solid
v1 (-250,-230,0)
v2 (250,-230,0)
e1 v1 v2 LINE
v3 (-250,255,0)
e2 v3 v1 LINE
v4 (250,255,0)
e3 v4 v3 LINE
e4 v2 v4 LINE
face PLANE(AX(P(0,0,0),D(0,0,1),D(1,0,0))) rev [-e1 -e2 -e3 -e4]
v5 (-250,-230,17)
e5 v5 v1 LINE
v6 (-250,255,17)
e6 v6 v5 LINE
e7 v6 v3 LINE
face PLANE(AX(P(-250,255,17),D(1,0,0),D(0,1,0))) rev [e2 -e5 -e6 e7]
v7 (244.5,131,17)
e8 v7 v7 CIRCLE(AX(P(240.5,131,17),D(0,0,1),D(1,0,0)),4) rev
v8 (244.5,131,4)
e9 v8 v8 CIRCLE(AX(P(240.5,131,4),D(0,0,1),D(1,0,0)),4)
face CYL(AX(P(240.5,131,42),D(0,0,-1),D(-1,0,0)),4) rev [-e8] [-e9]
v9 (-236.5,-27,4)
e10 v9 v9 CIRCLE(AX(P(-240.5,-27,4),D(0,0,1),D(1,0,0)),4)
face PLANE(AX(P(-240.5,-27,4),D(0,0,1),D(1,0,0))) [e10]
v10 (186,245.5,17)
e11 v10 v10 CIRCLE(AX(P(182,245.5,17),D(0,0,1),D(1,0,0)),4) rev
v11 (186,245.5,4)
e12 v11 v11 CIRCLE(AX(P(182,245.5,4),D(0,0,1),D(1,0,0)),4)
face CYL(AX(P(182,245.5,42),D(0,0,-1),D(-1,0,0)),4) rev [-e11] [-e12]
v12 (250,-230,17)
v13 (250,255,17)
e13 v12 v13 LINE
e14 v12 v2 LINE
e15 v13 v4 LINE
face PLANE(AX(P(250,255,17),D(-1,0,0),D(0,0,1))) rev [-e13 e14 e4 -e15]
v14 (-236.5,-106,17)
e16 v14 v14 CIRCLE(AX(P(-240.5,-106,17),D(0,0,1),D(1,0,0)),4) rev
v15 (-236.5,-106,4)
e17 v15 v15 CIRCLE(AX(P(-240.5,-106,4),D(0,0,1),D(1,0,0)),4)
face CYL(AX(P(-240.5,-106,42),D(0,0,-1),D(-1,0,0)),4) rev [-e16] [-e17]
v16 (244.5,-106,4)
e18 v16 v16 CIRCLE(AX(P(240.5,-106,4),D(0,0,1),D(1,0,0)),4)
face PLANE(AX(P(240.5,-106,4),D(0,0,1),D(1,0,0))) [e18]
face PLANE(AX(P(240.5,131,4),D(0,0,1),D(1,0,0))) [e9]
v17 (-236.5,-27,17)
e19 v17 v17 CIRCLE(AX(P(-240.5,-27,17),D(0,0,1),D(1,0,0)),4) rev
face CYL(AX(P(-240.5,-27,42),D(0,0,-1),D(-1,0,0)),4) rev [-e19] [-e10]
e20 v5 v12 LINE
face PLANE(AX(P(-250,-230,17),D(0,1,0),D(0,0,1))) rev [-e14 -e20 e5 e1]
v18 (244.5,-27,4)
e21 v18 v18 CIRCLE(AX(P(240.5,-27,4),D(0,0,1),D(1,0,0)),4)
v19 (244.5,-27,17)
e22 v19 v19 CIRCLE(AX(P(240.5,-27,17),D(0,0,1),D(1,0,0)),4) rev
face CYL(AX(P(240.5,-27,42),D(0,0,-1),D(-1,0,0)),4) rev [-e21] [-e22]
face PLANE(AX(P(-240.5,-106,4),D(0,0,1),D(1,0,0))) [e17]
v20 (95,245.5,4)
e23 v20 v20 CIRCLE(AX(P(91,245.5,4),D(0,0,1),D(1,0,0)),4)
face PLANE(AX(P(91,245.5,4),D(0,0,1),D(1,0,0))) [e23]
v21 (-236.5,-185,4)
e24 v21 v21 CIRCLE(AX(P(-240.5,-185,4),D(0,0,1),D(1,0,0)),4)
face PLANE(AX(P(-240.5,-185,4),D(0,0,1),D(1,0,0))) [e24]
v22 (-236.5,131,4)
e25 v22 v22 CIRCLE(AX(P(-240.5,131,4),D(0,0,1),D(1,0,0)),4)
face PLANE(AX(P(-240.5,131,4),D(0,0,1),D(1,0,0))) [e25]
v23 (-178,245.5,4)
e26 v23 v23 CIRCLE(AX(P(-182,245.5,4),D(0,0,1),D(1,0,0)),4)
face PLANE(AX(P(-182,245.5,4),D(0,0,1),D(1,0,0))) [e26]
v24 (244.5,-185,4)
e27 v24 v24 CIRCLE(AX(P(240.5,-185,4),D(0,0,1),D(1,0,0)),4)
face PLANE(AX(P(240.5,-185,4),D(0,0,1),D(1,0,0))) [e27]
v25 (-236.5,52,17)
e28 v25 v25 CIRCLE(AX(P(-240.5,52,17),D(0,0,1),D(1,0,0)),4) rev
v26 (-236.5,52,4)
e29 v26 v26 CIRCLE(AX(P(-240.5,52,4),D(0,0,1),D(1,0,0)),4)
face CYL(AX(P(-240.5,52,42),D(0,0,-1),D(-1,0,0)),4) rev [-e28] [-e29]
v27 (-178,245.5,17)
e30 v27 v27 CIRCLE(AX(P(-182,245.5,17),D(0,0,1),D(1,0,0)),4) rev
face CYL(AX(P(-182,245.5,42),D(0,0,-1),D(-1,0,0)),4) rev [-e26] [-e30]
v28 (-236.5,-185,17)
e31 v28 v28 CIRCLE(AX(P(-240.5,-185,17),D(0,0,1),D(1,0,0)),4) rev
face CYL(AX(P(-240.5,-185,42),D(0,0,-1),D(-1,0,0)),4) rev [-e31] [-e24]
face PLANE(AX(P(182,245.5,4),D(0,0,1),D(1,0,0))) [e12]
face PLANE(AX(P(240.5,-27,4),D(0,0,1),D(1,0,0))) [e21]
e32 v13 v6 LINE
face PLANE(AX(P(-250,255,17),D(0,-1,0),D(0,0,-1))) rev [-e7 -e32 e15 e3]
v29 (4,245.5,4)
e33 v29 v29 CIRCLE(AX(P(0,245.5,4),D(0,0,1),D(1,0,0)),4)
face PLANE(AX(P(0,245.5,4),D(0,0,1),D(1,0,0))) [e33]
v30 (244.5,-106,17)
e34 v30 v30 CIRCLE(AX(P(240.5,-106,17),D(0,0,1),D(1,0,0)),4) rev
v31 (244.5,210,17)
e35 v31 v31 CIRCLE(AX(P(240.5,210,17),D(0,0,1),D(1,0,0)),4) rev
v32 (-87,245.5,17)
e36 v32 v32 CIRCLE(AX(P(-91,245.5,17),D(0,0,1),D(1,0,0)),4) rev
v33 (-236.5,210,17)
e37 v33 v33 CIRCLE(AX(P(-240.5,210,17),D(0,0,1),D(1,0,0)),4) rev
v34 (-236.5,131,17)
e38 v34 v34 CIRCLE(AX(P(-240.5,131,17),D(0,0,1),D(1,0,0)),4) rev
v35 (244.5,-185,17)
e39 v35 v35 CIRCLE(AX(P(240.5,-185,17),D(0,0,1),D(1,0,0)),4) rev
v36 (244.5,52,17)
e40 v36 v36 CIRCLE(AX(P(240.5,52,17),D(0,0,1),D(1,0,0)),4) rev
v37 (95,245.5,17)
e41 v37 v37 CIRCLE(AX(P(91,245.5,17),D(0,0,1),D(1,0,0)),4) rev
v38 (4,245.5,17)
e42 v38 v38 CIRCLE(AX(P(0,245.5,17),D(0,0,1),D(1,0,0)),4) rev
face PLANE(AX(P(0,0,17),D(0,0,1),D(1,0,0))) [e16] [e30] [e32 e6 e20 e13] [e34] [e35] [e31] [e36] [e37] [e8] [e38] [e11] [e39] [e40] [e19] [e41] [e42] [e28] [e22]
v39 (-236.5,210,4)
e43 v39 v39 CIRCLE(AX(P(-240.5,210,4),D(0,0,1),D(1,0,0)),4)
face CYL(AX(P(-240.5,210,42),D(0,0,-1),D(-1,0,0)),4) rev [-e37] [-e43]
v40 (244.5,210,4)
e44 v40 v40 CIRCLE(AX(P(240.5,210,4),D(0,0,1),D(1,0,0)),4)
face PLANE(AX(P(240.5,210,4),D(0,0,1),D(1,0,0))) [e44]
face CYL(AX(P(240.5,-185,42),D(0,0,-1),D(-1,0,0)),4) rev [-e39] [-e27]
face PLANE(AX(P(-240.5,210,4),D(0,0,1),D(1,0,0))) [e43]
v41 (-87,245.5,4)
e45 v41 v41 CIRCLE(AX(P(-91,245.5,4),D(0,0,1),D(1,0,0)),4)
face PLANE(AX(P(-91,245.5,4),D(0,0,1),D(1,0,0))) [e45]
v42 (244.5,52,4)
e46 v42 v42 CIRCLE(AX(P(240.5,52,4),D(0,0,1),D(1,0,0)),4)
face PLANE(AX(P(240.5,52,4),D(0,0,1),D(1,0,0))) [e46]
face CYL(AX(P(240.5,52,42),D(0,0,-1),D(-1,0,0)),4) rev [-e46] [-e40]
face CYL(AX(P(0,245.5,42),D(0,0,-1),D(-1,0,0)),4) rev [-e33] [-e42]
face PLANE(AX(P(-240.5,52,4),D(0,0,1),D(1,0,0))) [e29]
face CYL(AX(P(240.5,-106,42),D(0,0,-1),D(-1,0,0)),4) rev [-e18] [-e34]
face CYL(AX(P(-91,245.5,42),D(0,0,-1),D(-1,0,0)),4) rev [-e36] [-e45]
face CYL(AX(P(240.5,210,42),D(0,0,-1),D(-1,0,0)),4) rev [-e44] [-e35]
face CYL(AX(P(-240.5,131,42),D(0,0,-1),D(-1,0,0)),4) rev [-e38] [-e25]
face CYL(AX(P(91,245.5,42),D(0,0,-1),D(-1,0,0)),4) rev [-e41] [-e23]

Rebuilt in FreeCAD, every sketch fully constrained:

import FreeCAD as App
import Part
import Sketcher
Q = App.Units.Quantity


def add_polygon(sketch, points):
    """Adds a closed chain of lines whose ends are joined by coincident constraints."""
    first, n = sketch.GeometryCount, len(points)
    for a, b in zip(points, points[1:] + points[:1]):
        sketch.addGeometry(Part.LineSegment(App.Vector(*a, 0), App.Vector(*b, 0)), False)
    for i in range(n):
        sketch.addConstraint(Sketcher.Constraint("Coincident", first + i, 2, first + (i + 1) % n, 1))

doc = App.newDocument("Part")
params = doc.addObject("Spreadsheet::Sheet", "Params")
for row, (alias, value) in enumerate([
    ("sketch1_width", "500 mm"),
    ("sketch1_height", "485 mm"),
    ("pad1_length", "17 mm"),
    ("sketch2_diameter", "8 mm"),
    ("pocket1_length", "25 mm"),
    ("pocket1_length2", "13 mm"),
], start=1):
    params.set(f"A{row}", alias)
    params.set(f"B{row}", "=" + value)
    params.setAlias(f"B{row}", alias)

body = doc.addObject("PartDesign::Body", "Body")

# Sketch on XY plane
sketch1 = body.newObject("Sketcher::SketchObject", "Sketch")
sketch1.AttachmentSupport = (doc.getObject("XY_Plane"), [""])
sketch1.MapMode = "FlatFace"
add_polygon(sketch1, [(-250, 255), (-250, -230), (250, -230), (250, 255)])  # lines 0-3
sketch1.addConstraint(Sketcher.Constraint("Vertical", 0))
sketch1.addConstraint(Sketcher.Constraint("Horizontal", 1))
sketch1.addConstraint(Sketcher.Constraint("Vertical", 2))
sketch1.addConstraint(Sketcher.Constraint("Horizontal", 3))
sketch1.addConstraint(Sketcher.Constraint("DistanceX", 1, 1, 1, 2, Q("500 mm")))
sketch1.addConstraint(Sketcher.Constraint("DistanceY", 0, 2, 0, 1, Q("485 mm")))
sketch1.addConstraint(Sketcher.Constraint("DistanceX", 0, 2, -1, 1, Q("250 mm")))
sketch1.addConstraint(Sketcher.Constraint("DistanceY", 0, 2, -1, 1, Q("230 mm")))
sketch1.setExpression("Constraints[8]", "Params.sketch1_width")
sketch1.setExpression("Constraints[9]", "Params.sketch1_height")
pad1 = body.newObject("PartDesign::Pad", "Pad")
pad1.Profile = sketch1
pad1.setExpression("Length", "Params.pad1_length")

# Sketch on XY plane
sketch2 = body.newObject("Sketcher::SketchObject", "Sketch001")
sketch2.AttachmentSupport = (doc.getObject("XY_Plane"), [""])
sketch2.MapMode = "FlatFace"
sketch2.AttachmentOffset = App.Placement(App.Vector(0, 0, 17), App.Rotation())
sketch2.addGeometry(Part.Circle(App.Vector(240.5, 210, 0), App.Vector(0, 0, 1), 4), False)
sketch2.addGeometry(Part.Circle(App.Vector(182, 245.5, 0), App.Vector(0, 0, 1), 4), False)
sketch2.addGeometry(Part.Circle(App.Vector(-240.5, 210, 0), App.Vector(0, 0, 1), 4), False)
sketch2.addGeometry(Part.Circle(App.Vector(-240.5, 131, 0), App.Vector(0, 0, 1), 4), False)
sketch2.addGeometry(Part.Circle(App.Vector(240.5, 131, 0), App.Vector(0, 0, 1), 4), False)
sketch2.addGeometry(Part.Circle(App.Vector(-240.5, 52, 0), App.Vector(0, 0, 1), 4), False)
sketch2.addGeometry(Part.Circle(App.Vector(240.5, 52, 0), App.Vector(0, 0, 1), 4), False)
sketch2.addGeometry(Part.Circle(App.Vector(-240.5, -27, 0), App.Vector(0, 0, 1), 4), False)
sketch2.addGeometry(Part.Circle(App.Vector(240.5, -27, 0), App.Vector(0, 0, 1), 4), False)
sketch2.addGeometry(Part.Circle(App.Vector(-240.5, -106, 0), App.Vector(0, 0, 1), 4), False)
sketch2.addGeometry(Part.Circle(App.Vector(240.5, -106, 0), App.Vector(0, 0, 1), 4), False)
sketch2.addGeometry(Part.Circle(App.Vector(-182, 245.5, 0), App.Vector(0, 0, 1), 4), False)
sketch2.addGeometry(Part.Circle(App.Vector(-240.5, -185, 0), App.Vector(0, 0, 1), 4), False)
sketch2.addGeometry(Part.Circle(App.Vector(91, 245.5, 0), App.Vector(0, 0, 1), 4), False)
sketch2.addGeometry(Part.Circle(App.Vector(0, 245.5, 0), App.Vector(0, 0, 1), 4), False)
sketch2.addGeometry(Part.Circle(App.Vector(-91, 245.5, 0), App.Vector(0, 0, 1), 4), False)
sketch2.addGeometry(Part.Circle(App.Vector(240.5, -185, 0), App.Vector(0, 0, 1), 4), False)
sketch2.addConstraint(Sketcher.Constraint("Equal", 0, 1))
sketch2.addConstraint(Sketcher.Constraint("Equal", 1, 2))
sketch2.addConstraint(Sketcher.Constraint("Equal", 2, 3))
sketch2.addConstraint(Sketcher.Constraint("Equal", 3, 4))
sketch2.addConstraint(Sketcher.Constraint("Equal", 4, 5))
sketch2.addConstraint(Sketcher.Constraint("Equal", 5, 6))
sketch2.addConstraint(Sketcher.Constraint("Equal", 6, 7))
sketch2.addConstraint(Sketcher.Constraint("Equal", 7, 8))
sketch2.addConstraint(Sketcher.Constraint("Equal", 8, 9))
sketch2.addConstraint(Sketcher.Constraint("Equal", 9, 10))
sketch2.addConstraint(Sketcher.Constraint("Equal", 10, 11))
sketch2.addConstraint(Sketcher.Constraint("Equal", 11, 12))
sketch2.addConstraint(Sketcher.Constraint("Equal", 12, 13))
sketch2.addConstraint(Sketcher.Constraint("Equal", 13, 14))
sketch2.addConstraint(Sketcher.Constraint("Equal", 14, 15))
sketch2.addConstraint(Sketcher.Constraint("Equal", 15, 16))
sketch2.addConstraint(Sketcher.Constraint("Symmetric", 0, 3, 2, 3, -2))
sketch2.addConstraint(Sketcher.Constraint("Symmetric", 3, 3, 4, 3, -2))
sketch2.addConstraint(Sketcher.Constraint("Symmetric", 5, 3, 6, 3, -2))
sketch2.addConstraint(Sketcher.Constraint("Symmetric", 7, 3, 8, 3, -2))
sketch2.addConstraint(Sketcher.Constraint("Symmetric", 9, 3, 10, 3, -2))
sketch2.addConstraint(Sketcher.Constraint("Symmetric", 1, 3, 11, 3, -2))
sketch2.addConstraint(Sketcher.Constraint("Symmetric", 13, 3, 15, 3, -2))
sketch2.addConstraint(Sketcher.Constraint("Symmetric", 12, 3, 16, 3, -2))
sketch2.addConstraint(Sketcher.Constraint("PointOnObject", 14, 3, -2))
sketch2.addConstraint(Sketcher.Constraint("Horizontal", 11, 3, 13, 3))
sketch2.addConstraint(Sketcher.Constraint("Horizontal", 13, 3, 14, 3))
sketch2.addConstraint(Sketcher.Constraint("Vertical", 2, 3, 3, 3))
sketch2.addConstraint(Sketcher.Constraint("Vertical", 3, 3, 5, 3))
sketch2.addConstraint(Sketcher.Constraint("Vertical", 5, 3, 7, 3))
sketch2.addConstraint(Sketcher.Constraint("Vertical", 7, 3, 9, 3))
sketch2.addConstraint(Sketcher.Constraint("Vertical", 9, 3, 12, 3))
sketch2.addConstraint(Sketcher.Constraint("Diameter", 0, Q("8 mm")))
sketch2.addConstraint(Sketcher.Constraint("DistanceY", -1, 1, 0, 3, Q("210 mm")))
sketch2.addConstraint(Sketcher.Constraint("DistanceX", -1, 1, 1, 3, Q("182 mm")))
sketch2.addConstraint(Sketcher.Constraint("DistanceY", -1, 1, 3, 3, Q("131 mm")))
sketch2.addConstraint(Sketcher.Constraint("DistanceY", -1, 1, 5, 3, Q("52 mm")))
sketch2.addConstraint(Sketcher.Constraint("DistanceY", 7, 3, -1, 1, Q("27 mm")))
sketch2.addConstraint(Sketcher.Constraint("DistanceY", 9, 3, -1, 1, Q("106 mm")))
sketch2.addConstraint(Sketcher.Constraint("DistanceY", 12, 3, -1, 1, Q("185 mm")))
sketch2.addConstraint(Sketcher.Constraint("DistanceX", -1, 1, 13, 3, Q("91 mm")))
sketch2.addConstraint(Sketcher.Constraint("DistanceX", 2, 3, 0, 3, Q("481 mm")))
sketch2.addConstraint(Sketcher.Constraint("DistanceY", -1, 1, 1, 3, Q("245.5 mm")))
sketch2.setExpression("Constraints[32]", "Params.sketch2_diameter")
pocket1 = body.newObject("PartDesign::Pocket", "Pocket")
pocket1.Profile = sketch2
pocket1.Type = "TwoLengths"
pocket1.setExpression("Length", "Params.pocket1_length")
pocket1.setExpression("Length2", "Params.pocket1_length2")
pocket1.Reversed = True

doc.recompute()
